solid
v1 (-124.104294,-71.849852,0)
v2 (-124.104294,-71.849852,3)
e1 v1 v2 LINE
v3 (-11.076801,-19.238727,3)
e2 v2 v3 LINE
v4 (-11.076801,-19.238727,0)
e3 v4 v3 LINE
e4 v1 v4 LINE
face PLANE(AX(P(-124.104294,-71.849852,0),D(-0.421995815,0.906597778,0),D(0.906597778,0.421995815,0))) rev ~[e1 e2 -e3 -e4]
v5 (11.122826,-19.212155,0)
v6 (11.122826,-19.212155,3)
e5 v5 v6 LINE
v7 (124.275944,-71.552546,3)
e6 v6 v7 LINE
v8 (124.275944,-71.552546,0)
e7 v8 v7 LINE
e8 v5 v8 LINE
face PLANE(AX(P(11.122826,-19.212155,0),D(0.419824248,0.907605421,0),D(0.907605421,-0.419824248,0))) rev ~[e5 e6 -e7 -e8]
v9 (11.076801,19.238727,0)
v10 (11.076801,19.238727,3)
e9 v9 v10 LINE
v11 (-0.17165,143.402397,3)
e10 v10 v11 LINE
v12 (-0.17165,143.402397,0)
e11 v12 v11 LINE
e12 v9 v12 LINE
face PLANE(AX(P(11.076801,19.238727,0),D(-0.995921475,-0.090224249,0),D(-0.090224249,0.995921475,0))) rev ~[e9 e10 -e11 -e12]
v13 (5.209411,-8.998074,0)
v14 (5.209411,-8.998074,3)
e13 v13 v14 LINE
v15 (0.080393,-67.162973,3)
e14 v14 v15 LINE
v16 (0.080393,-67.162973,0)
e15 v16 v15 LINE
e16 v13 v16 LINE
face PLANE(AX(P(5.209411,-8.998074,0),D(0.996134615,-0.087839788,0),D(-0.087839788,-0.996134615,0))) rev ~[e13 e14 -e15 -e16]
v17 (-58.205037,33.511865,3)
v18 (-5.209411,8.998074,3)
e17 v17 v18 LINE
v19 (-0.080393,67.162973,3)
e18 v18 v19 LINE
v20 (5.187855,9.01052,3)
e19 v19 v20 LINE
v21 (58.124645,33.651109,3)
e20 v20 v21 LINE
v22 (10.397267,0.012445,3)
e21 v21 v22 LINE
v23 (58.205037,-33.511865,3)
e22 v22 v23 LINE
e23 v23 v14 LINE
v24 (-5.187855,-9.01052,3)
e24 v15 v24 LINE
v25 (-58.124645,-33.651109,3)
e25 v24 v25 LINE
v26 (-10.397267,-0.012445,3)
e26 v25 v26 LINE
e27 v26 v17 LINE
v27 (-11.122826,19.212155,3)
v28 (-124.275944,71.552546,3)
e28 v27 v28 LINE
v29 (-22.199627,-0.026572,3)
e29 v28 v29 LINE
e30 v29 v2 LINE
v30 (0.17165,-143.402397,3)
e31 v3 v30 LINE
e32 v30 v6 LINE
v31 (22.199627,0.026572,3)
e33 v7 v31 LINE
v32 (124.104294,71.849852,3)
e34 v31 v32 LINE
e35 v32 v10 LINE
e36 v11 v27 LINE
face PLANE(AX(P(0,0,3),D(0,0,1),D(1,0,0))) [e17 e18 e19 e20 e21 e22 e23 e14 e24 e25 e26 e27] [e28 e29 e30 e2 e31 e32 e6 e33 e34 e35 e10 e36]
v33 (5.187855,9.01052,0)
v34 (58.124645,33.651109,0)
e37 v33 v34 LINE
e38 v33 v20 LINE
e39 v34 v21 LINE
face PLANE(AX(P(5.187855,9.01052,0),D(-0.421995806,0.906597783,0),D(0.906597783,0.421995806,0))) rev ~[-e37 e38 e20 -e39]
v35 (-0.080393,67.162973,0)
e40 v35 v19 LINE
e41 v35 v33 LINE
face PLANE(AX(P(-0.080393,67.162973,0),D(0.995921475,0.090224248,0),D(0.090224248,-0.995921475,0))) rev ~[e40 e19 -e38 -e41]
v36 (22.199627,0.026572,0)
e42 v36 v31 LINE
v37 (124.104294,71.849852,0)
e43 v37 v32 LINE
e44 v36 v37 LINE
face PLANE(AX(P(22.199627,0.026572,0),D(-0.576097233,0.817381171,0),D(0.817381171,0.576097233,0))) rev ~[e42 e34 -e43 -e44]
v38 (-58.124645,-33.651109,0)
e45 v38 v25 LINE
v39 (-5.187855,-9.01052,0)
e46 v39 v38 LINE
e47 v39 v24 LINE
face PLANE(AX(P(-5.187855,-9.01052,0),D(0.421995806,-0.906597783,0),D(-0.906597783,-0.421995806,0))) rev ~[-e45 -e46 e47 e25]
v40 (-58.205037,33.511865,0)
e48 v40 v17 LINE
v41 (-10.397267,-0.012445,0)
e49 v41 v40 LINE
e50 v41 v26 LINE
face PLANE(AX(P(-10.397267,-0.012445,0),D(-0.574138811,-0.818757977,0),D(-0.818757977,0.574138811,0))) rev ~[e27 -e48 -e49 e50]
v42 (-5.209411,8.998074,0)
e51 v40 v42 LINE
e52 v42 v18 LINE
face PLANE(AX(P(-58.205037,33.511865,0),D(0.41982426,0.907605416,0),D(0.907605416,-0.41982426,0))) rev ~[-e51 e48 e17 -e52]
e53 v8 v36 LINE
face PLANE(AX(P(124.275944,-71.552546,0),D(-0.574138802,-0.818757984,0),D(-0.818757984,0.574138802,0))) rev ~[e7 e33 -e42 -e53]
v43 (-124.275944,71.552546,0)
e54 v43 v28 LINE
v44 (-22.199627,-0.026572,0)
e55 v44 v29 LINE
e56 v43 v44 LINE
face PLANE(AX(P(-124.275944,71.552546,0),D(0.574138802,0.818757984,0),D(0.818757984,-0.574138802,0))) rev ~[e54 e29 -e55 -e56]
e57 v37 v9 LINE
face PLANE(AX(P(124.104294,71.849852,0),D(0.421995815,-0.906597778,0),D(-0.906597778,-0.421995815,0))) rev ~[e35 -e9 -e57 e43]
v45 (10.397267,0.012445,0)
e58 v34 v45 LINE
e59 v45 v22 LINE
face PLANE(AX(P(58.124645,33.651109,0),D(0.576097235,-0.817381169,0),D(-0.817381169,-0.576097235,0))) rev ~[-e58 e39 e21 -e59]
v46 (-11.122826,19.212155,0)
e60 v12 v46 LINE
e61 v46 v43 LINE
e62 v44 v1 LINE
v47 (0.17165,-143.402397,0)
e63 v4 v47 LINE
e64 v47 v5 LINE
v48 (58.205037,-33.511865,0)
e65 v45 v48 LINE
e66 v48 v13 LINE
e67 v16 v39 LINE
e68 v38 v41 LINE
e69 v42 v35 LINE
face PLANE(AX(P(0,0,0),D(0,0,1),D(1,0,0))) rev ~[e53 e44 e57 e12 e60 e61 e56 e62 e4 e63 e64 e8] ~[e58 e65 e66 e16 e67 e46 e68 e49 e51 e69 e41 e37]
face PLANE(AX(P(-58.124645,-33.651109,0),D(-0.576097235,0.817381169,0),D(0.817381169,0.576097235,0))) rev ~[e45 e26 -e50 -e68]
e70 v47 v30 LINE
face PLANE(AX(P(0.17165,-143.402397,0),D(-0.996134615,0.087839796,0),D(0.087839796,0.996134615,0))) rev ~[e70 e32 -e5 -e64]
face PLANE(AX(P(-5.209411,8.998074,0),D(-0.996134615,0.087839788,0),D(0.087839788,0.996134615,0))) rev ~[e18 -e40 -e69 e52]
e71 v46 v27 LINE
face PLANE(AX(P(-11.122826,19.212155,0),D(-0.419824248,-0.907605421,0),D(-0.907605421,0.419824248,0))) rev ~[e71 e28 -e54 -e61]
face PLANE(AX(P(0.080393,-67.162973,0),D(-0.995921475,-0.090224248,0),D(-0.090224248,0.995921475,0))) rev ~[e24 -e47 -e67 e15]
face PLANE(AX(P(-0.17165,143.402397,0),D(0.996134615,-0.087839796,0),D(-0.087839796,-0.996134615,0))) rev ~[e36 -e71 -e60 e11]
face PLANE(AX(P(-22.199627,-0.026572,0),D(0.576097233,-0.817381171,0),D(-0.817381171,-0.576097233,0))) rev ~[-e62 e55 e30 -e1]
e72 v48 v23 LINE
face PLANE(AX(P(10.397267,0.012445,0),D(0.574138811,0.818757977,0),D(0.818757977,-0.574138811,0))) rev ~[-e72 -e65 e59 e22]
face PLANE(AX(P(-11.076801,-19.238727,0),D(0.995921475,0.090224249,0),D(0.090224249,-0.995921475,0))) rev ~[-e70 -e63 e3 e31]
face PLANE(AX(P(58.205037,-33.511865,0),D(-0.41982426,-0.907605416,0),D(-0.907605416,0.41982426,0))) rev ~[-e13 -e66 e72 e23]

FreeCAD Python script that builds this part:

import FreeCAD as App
import Part
import Sketcher
from FreeCAD import Vector
Q = App.Units.Quantity


def add_polygon(sketch, points):
    """Adds a closed chain of lines whose ends are joined by coincident constraints."""
    first, n = sketch.GeometryCount, len(points)
    for a, b in zip(points, points[1:] + points[:1]):
        sketch.addGeometry(Part.LineSegment(App.Vector(*a, 0), App.Vector(*b, 0)), False)
    for i in range(n):
        sketch.addConstraint(Sketcher.Constraint("Coincident", first + i, 2, first + (i + 1) % n, 1))

doc = App.newDocument("Part")
body = doc.addObject("PartDesign::Body", "Body")

sketch1 = body.newObject("Sketcher::SketchObject", "Sketch")
sketch1.AttachmentSupport = (doc.getObject("XY_Plane"), [""])
sketch1.MapMode = "FlatFace"
add_polygon(sketch1, [(0.17165, -143.402397), (11.122826, -19.212155), (124.275944, -71.552546), (22.199627, 0.026572), (124.104294, 71.849852), (11.076801, 19.238727), (-0.17165, 143.402397), (-11.122826, 19.212155), (-124.275944, 71.552546), (-22.199627, -0.026572), (-124.104294, -71.849852), (-11.076801, -19.238727)])
add_polygon(sketch1, [(-58.124645, -33.651109), (-10.397267, -0.012445), (-58.205037, 33.511865), (-5.209411, 8.998074), (-0.080393, 67.162973), (5.187855, 9.01052), (58.124645, 33.651109), (10.397267, 0.012445), (58.205037, -33.511865), (5.209411, -8.998074), (0.080393, -67.162973), (-5.187855, -9.01052)])
sketch1.addConstraint(Sketcher.Constraint("Symmetric", 0, 2, 6, 2, -1, 1))
sketch1.addConstraint(Sketcher.Constraint("Symmetric", 1, 2, 7, 2, -1, 1))
sketch1.addConstraint(Sketcher.Constraint("Symmetric", 2, 2, 8, 2, -1, 1))
sketch1.addConstraint(Sketcher.Constraint("Symmetric", 3, 2, 9, 2, -1, 1))
sketch1.addConstraint(Sketcher.Constraint("Symmetric", 4, 2, 10, 2, -1, 1))
sketch1.addConstraint(Sketcher.Constraint("Symmetric", 5, 2, 11, 2, -1, 1))
sketch1.addConstraint(Sketcher.Constraint("Symmetric", 12, 2, 18, 2, -1, 1))
sketch1.addConstraint(Sketcher.Constraint("Symmetric", 13, 2, 19, 2, -1, 1))
sketch1.addConstraint(Sketcher.Constraint("Symmetric", 14, 2, 20, 2, -1, 1))
sketch1.addConstraint(Sketcher.Constraint("Symmetric", 15, 2, 21, 2, -1, 1))
sketch1.addConstraint(Sketcher.Constraint("Symmetric", 16, 2, 22, 2, -1, 1))
sketch1.addConstraint(Sketcher.Constraint("Symmetric", 17, 2, 23, 2, -1, 1))
sketch1.addConstraint(Sketcher.Constraint("Parallel", 9, 12))
sketch1.addConstraint(Sketcher.Constraint("Parallel", 8, 13))
sketch1.addConstraint(Sketcher.Constraint("Parallel", 7, 14))
sketch1.addConstraint(Sketcher.Constraint("Parallel", 6, 15))
sketch1.addConstraint(Sketcher.Constraint("Parallel", 11, 16))
sketch1.addConstraint(Sketcher.Constraint("Parallel", 10, 17))
sketch1.addConstraint(Sketcher.Constraint("Equal", 0, 1))
sketch1.addConstraint(Sketcher.Constraint("Equal", 1, 2))
sketch1.addConstraint(Sketcher.Constraint("Equal", 2, 3))
sketch1.addConstraint(Sketcher.Constraint("Equal", 3, 4))
sketch1.addConstraint(Sketcher.Constraint("Equal", 4, 5))
sketch1.addConstraint(Sketcher.Constraint("Equal", 12, 13))
sketch1.addConstraint(Sketcher.Constraint("Equal", 13, 14))
sketch1.addConstraint(Sketcher.Constraint("Equal", 14, 15))
sketch1.addConstraint(Sketcher.Constraint("Equal", 15, 16))
sketch1.addConstraint(Sketcher.Constraint("Equal", 16, 17))
sketch1.addConstraint(Sketcher.Constraint("Distance", 12, Q("58.390601 mm")))
sketch1.addConstraint(Sketcher.Constraint("DistanceX", -1, 1, 4, 2, Q("11.076801 mm")))
sketch1.addConstraint(Sketcher.Constraint("DistanceX", 0, 2, 2, 2, Q("11.076801 mm")))
sketch1.addConstraint(Sketcher.Constraint("DistanceY", 1, 2, 3, 2, Q("143.402398 mm")))
sketch1.addConstraint(Sketcher.Constraint("DistanceY", 0, 2, 7, 2, Q("90.764701 mm")))
sketch1.addConstraint(Sketcher.Constraint("DistanceY", 8, 2, 4, 2, Q("19.265299 mm")))
sketch1.addConstraint(Sketcher.Constraint("DistanceY", 12, 2, 6, 2, Q("19.2246 mm")))
sketch1.addConstraint(Sketcher.Constraint("DistanceY", 10, 2, 14, 2, Q("28.236801 mm")))
pad1 = body.newObject("PartDesign::Pad", "Pad")
pad1.Profile = sketch1
pad1.Length = 3

doc.recompute()
